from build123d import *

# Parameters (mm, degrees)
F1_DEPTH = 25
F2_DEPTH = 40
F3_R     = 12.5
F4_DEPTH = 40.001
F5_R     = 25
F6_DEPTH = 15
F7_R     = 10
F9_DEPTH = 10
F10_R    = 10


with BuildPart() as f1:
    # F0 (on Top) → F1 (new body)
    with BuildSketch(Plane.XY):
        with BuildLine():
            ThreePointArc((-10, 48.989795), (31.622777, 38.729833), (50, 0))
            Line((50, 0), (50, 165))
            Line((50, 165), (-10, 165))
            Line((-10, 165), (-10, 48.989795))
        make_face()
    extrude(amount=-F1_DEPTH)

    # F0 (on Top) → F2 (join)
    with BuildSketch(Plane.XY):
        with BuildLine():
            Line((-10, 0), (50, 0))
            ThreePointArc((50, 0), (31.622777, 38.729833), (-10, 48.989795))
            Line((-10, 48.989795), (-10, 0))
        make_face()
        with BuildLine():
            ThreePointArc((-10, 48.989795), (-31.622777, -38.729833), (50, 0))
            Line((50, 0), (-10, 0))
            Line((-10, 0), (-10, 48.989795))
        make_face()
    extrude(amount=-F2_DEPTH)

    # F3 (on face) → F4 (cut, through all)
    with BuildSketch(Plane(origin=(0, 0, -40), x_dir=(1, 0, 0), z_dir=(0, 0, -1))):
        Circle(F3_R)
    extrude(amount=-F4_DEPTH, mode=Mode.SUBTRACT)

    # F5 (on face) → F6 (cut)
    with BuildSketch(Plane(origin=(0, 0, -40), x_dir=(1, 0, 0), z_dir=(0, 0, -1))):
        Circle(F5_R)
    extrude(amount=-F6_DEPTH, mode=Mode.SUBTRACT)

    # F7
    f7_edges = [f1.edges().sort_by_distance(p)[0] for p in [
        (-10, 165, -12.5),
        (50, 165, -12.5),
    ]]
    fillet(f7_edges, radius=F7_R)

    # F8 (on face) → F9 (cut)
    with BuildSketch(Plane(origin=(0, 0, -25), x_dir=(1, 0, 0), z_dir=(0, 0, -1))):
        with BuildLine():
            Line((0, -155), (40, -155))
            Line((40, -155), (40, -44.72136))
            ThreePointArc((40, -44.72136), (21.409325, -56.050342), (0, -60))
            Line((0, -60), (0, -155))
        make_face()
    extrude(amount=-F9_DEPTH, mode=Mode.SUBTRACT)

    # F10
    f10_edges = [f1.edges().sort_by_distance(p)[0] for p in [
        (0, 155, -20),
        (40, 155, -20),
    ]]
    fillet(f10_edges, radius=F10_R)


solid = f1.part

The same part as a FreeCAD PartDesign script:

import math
import FreeCAD as App
import Part
import Sketcher
from FreeCAD import Vector
Q = App.Units.Quantity


def edges_at(feature, points):
    """Names of the edges that pass closest to the given points."""
    edges = feature.Shape.Edges
    near = lambda p: min(range(len(edges)), key=lambda i: edges[i].distToShape(Part.Vertex(*p))[0])
    return sorted({f"Edge{near(p) + 1}" for p in points})

doc = App.newDocument("Part")
body = doc.addObject("PartDesign::Body", "Body")

sketch1 = body.newObject("Sketcher::SketchObject", "Sketch")
sketch1.AttachmentSupport = (doc.getObject("XY_Plane"), [""])
sketch1.MapMode = "FlatFace"
sketch1.addGeometry([
    Part.ArcOfCircle(Part.Circle(Vector(0, 0, 0), Vector(0, 0, 1), 50), math.radians(0), math.radians(102)),
    Part.LineSegment(Vector(50, 0, 0), Vector(50, 165, 0)),
    Part.LineSegment(Vector(50, 165, 0), Vector(-10, 165, 0)),
    Part.LineSegment(Vector(-10, 165, 0), Vector(-10, 49, 0)),
], False)
sketch1.addConstraint([
    Sketcher.Constraint("Tangent", 0, 1, 1, 1),
    Sketcher.Constraint("Coincident", 1, 2, 2, 1),
    Sketcher.Constraint("Coincident", 2, 2, 3, 1),
    Sketcher.Constraint("Coincident", 3, 2, 0, 2),
    Sketcher.Constraint("Vertical", 1),
    Sketcher.Constraint("Horizontal", 2),
    Sketcher.Constraint("Vertical", 3),
    Sketcher.Constraint("Coincident", 0, 3, -1, 1),
    Sketcher.Constraint("Radius", 0, Q("50 mm")),
    Sketcher.Constraint("DistanceX", 2, 2, 2, 1, Q("60 mm")),
    Sketcher.Constraint("DistanceY", 1, 1, 1, 2, Q("165 mm")),
])
pad1 = body.newObject("PartDesign::Pad", "Pad")
pad1.Profile = sketch1
pad1.Length = 25
pad1.Reversed = True

sketch2 = body.newObject("Sketcher::SketchObject", "Sketch001")
sketch2.AttachmentSupport = (doc.getObject("XY_Plane"), [""])
sketch2.MapMode = "FlatFace"
sketch2.addGeometry([
    Part.ArcOfCircle(Part.Circle(Vector(0, 0, 0), Vector(0, 0, 1), 50), math.radians(0), math.radians(102)),
    Part.ArcOfCircle(Part.Circle(Vector(0, 0, 0), Vector(0, 0, 1), 50), math.radians(102), math.radians(360)),
], False)
sketch2.addConstraint([
    Sketcher.Constraint("Tangent", 0, 1, 1, 2),
    Sketcher.Constraint("Coincident", 1, 1, 0, 2),
    Sketcher.Constraint("Coincident", 0, 3, -1, 1),
    Sketcher.Constraint("PointOnObject", 0, 1, -1),
    Sketcher.Constraint("Radius", 0, Q("50 mm")),
    Sketcher.Constraint("DistanceX", 1, 1, -1, 1, Q("10 mm")),
])
pad2 = body.newObject("PartDesign::Pad", "Pad001")
pad2.Profile = sketch2
pad2.Length = 40
pad2.Reversed = True

sketch3 = body.newObject("Sketcher::SketchObject", "Sketch002")
sketch3.AttachmentSupport = (doc.getObject("XY_Plane"), [""])
sketch3.MapMode = "FlatFace"
sketch3.AttachmentOffset = App.Placement(Vector(0, 0, -40), App.Rotation())
sketch3.addGeometry(Part.Circle(Vector(0, 0, 0), Vector(0, 0, 1), 12), False)
sketch3.addConstraint([
    Sketcher.Constraint("Coincident", 0, 3, -1, 1),
    Sketcher.Constraint("Diameter", 0, Q("25 mm")),
])
pocket1 = body.newObject("PartDesign::Pocket", "Pocket")
pocket1.Profile = sketch3
pocket1.Type = "ThroughAll"
pocket1.Reversed = True

sketch4 = body.newObject("Sketcher::SketchObject", "Sketch003")
sketch4.AttachmentSupport = (doc.getObject("XY_Plane"), [""])
sketch4.MapMode = "FlatFace"
sketch4.AttachmentOffset = App.Placement(Vector(0, 0, -40), App.Rotation())
sketch4.addGeometry(Part.Circle(Vector(0, 0, 0), Vector(0, 0, 1), 25), False)
sketch4.addConstraint([
    Sketcher.Constraint("Coincident", 0, 3, -1, 1),
    Sketcher.Constraint("Diameter", 0, Q("50 mm")),
])
pocket2 = body.newObject("PartDesign::Pocket", "Pocket001")
pocket2.Profile = sketch4
pocket2.Length = 15
pocket2.Reversed = True
doc.recompute()

fillet = body.newObject("PartDesign::Fillet", "Fillet")
fillet.Base = (pocket2, edges_at(pocket2, [(-10, 165, -12.5), (50, 165, -12.5)]))
fillet.Radius = 10

sketch5 = body.newObject("Sketcher::SketchObject", "Sketch004")
sketch5.AttachmentSupport = (doc.getObject("XY_Plane"), [""])
sketch5.MapMode = "FlatFace"
sketch5.AttachmentOffset = App.Placement(Vector(0, 0, -25), App.Rotation())
sketch5.addGeometry([
    Part.LineSegment(Vector(0, 155, 0), Vector(40, 155, 0)),
    Part.LineSegment(Vector(40, 155, 0), Vector(40, 45, 0)),
    Part.ArcOfCircle(Part.Circle(Vector(0, 0, 0), Vector(0, 0, 1), 60), math.radians(48), math.radians(90)),
    Part.LineSegment(Vector(0, 60, 0), Vector(0, 155, 0)),
], False)
sketch5.addConstraint([
    Sketcher.Constraint("Coincident", 0, 2, 1, 1),
    Sketcher.Constraint("Coincident", 1, 2, 2, 1),
    Sketcher.Constraint("Coincident", 2, 2, 3, 1),
    Sketcher.Constraint("Coincident", 3, 2, 0, 1),
    Sketcher.Constraint("Horizontal", 0),
    Sketcher.Constraint("Vertical", 1),
    Sketcher.Constraint("Vertical", 3),
    Sketcher.Constraint("Coincident", 2, 3, -1, 1),
    Sketcher.Constraint("PointOnObject", 2, 2, -2),
    Sketcher.Constraint("Radius", 2, Q("59.999998 mm")),
    Sketcher.Constraint("DistanceX", 0, 1, 0, 2, Q("40 mm")),
    Sketcher.Constraint("DistanceY", 3, 1, 3, 2, Q("95 mm")),
])
pocket3 = body.newObject("PartDesign::Pocket", "Pocket002")
pocket3.Profile = sketch5
pocket3.Length = 10
pocket3.Reversed = True
doc.recompute()

fillet2 = body.newObject("PartDesign::Fillet", "Fillet001")
fillet2.Base = (pocket3, edges_at(pocket3, [(0, 155, -20), (40, 155, -20)]))
fillet2.Radius = 10

doc.recompute()
